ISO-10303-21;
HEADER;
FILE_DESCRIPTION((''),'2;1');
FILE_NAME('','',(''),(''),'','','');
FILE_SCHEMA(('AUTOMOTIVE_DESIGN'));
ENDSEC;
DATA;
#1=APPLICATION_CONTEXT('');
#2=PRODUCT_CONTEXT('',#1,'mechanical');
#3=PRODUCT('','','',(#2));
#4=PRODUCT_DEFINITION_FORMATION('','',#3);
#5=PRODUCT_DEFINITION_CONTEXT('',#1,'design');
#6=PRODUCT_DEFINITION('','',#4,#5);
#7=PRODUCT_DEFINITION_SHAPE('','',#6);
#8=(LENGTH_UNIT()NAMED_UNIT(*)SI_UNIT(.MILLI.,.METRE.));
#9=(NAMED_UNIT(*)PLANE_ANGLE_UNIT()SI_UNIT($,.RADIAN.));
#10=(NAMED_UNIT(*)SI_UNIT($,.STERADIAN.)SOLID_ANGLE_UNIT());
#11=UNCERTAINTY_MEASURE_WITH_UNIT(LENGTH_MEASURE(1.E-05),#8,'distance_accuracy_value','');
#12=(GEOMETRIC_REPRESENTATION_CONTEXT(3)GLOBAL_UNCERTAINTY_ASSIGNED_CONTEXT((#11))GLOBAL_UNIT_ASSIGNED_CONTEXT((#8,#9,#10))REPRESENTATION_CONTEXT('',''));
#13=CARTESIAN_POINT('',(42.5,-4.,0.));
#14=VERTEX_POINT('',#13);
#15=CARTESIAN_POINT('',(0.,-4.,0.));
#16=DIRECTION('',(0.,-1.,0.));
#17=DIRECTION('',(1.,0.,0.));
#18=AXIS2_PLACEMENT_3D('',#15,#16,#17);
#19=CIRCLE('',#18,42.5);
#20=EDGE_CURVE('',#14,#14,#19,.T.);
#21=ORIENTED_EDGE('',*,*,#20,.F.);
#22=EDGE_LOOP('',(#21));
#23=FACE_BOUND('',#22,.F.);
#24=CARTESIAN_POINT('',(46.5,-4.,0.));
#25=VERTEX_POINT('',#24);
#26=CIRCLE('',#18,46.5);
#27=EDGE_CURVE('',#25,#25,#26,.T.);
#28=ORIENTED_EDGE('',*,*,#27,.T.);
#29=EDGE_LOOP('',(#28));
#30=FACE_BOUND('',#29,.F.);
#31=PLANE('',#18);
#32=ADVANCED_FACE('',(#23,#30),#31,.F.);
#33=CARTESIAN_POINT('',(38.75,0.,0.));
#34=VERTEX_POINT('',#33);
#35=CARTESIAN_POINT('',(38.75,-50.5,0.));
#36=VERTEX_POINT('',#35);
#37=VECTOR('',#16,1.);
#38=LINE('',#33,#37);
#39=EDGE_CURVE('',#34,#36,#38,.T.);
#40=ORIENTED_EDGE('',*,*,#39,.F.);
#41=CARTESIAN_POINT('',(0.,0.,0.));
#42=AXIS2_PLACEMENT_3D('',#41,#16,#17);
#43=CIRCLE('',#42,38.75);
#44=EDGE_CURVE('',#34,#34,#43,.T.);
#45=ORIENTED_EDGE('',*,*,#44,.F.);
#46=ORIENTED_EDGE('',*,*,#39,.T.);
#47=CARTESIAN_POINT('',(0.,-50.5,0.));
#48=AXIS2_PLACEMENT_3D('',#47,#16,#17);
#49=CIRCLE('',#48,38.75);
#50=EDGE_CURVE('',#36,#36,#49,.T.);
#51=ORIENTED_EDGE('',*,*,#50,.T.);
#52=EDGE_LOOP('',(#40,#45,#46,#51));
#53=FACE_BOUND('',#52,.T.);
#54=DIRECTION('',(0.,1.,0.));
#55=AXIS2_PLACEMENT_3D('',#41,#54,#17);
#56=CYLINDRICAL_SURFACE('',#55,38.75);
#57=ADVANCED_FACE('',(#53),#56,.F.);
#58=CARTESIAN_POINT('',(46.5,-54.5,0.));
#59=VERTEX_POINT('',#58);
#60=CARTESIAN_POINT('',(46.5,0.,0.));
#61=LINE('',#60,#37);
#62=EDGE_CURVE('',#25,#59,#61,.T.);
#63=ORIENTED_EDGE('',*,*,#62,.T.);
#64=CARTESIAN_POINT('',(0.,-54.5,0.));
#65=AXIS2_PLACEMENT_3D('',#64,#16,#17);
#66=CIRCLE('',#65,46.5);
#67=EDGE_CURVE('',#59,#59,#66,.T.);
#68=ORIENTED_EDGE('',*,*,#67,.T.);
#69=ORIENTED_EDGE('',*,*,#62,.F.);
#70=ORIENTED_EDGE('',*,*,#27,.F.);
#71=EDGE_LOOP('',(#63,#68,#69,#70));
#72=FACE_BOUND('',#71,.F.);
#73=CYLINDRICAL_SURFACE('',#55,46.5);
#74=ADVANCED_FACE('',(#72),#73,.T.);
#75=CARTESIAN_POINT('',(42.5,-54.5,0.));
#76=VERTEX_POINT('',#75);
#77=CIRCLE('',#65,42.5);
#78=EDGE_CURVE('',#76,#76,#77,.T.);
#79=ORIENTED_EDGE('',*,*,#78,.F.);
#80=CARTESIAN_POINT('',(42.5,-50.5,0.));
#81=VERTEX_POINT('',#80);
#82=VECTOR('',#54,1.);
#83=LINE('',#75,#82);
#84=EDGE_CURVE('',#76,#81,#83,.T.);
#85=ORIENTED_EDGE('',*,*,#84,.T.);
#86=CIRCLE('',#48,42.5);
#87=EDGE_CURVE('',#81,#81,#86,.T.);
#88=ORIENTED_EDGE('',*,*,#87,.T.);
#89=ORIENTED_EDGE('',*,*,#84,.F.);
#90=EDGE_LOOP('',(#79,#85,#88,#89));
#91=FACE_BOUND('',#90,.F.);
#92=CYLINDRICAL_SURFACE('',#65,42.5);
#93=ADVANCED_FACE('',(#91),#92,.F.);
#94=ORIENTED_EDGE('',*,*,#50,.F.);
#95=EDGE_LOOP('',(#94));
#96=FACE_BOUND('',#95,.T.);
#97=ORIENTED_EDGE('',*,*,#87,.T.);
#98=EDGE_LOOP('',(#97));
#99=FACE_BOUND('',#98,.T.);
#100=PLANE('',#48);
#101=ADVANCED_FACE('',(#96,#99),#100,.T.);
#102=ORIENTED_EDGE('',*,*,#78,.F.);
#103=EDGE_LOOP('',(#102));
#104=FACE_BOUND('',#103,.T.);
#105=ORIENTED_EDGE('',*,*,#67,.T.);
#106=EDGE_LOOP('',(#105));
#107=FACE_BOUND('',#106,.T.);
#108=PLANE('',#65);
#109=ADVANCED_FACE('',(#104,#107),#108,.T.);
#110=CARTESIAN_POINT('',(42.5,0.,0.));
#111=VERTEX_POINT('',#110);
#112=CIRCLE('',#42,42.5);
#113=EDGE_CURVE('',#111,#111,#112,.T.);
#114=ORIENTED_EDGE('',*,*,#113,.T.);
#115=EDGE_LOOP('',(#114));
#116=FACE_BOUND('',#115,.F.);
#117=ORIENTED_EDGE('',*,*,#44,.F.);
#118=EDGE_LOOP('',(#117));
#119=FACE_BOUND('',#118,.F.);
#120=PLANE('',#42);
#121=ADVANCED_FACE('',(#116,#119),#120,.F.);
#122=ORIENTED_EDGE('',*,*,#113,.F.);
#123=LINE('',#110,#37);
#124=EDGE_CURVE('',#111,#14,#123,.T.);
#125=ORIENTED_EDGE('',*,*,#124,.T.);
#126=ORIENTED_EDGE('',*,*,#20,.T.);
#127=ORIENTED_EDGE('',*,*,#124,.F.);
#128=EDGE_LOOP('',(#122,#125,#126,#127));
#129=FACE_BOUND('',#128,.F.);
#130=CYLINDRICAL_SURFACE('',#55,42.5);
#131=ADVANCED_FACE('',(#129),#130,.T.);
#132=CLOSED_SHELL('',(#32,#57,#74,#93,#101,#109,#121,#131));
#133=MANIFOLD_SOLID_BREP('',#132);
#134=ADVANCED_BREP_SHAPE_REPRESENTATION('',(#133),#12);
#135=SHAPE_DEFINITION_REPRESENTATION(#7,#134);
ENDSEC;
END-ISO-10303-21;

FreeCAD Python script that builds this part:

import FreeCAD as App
import Part
import Sketcher
Q = App.Units.Quantity

doc = App.newDocument("Part")
body = doc.addObject("PartDesign::Body", "Body")

# Sketch on XZ plane
sketch1 = body.newObject("Sketcher::SketchObject", "Sketch")
sketch1.AttachmentSupport = (doc.getObject("XZ_Plane"), [""])
sketch1.MapMode = "FlatFace"
sketch1.addGeometry([
    Part.Circle(App.Vector(0, 0, 0), App.Vector(0, 0, 1), 46),
    Part.Circle(App.Vector(0, 0, 0), App.Vector(0, 0, 1), 39),
], False)
sketch1.addConstraint([
    Sketcher.Constraint("Coincident", 0, 3, -1, 1),
    Sketcher.Constraint("Coincident", 1, 3, -1, 1),
    Sketcher.Constraint("Diameter", 0, Q("93 mm")),
    Sketcher.Constraint("Diameter", 1, Q("77.5 mm")),
])
pad1 = body.newObject("PartDesign::Pad", "Pad")
pad1.Profile = sketch1
pad1.Length = 54.5

# Sketch on XZ plane
sketch2 = body.newObject("Sketcher::SketchObject", "Sketch001")
sketch2.AttachmentSupport = (doc.getObject("XZ_Plane"), [""])
sketch2.MapMode = "FlatFace"
sketch2.addGeometry([
    Part.Circle(App.Vector(0, 0, 0), App.Vector(0, 0, 1), 46),
    Part.Circle(App.Vector(0, 0, 0), App.Vector(0, 0, 1), 42),
], False)
sketch2.addConstraint([
    Sketcher.Constraint("Coincident", 0, 3, -1, 1),
    Sketcher.Constraint("Coincident", 1, 3, -1, 1),
    Sketcher.Constraint("Diameter", 0, Q("93 mm")),
    Sketcher.Constraint("Diameter", 1, Q("85 mm")),
])
pocket1 = body.newObject("PartDesign::Pocket", "Pocket")
pocket1.Profile = sketch2
pocket1.Length = 4
pocket1.Reversed = True

# Sketch on XZ plane
sketch3 = body.newObject("Sketcher::SketchObject", "Sketch002")
sketch3.AttachmentSupport = (doc.getObject("XZ_Plane"), [""])
sketch3.MapMode = "FlatFace"
sketch3.AttachmentOffset = App.Placement(App.Vector(0, 0, 54.5), App.Rotation())
sketch3.addGeometry([
    Part.Circle(App.Vector(0, 0, 0), App.Vector(0, 0, 1), 42),
    Part.Circle(App.Vector(0, 0, 0), App.Vector(0, 0, 1), 39),
], False)
sketch3.addConstraint([
    Sketcher.Constraint("Coincident", 0, 3, -1, 1),
    Sketcher.Constraint("Coincident", 1, 3, -1, 1),
    Sketcher.Constraint("Diameter", 0, Q("85 mm")),
    Sketcher.Constraint("Diameter", 1, Q("77.5 mm")),
])
pocket2 = body.newObject("PartDesign::Pocket", "Pocket001")
pocket2.Profile = sketch3
pocket2.Length = 4

doc.recompute()
